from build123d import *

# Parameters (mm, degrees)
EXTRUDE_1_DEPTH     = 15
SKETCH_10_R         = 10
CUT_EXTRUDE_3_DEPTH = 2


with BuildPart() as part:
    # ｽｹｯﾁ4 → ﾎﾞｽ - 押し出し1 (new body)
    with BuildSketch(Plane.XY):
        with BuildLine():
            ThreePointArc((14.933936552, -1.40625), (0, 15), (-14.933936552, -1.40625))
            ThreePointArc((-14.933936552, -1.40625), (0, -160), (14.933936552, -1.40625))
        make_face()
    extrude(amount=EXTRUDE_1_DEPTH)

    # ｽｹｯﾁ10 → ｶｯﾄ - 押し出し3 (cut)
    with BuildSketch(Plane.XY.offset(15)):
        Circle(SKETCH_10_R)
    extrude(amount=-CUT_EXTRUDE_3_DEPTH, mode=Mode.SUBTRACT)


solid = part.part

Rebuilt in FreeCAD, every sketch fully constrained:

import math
import FreeCAD as App
import Part
import Sketcher
Q = App.Units.Quantity

doc = App.newDocument("Part")
body = doc.addObject("PartDesign::Body", "Body")

# Sketch on XY plane
sketch1 = doc.addObject("Sketcher::SketchObject", "Sketch")
body.addObject(sketch1)
sketch1.AttachmentSupport = (doc.XY_Plane, [""])
sketch1.MapMode = "FlatFace"
sketch1.addGeometry([
    Part.ArcOfCircle(Part.Circle(App.Vector(0, 0, 0), App.Vector(0, 0, 1), 15), math.radians(-5), math.radians(185)),
    Part.ArcOfCircle(Part.Circle(App.Vector(0, -80, 0), App.Vector(0, 0, 1), 80), math.radians(101), math.radians(439)),
], False)
sketch1.addConstraint([
    Sketcher.Constraint("Coincident", 0, 1, 1, 2),
    Sketcher.Constraint("Coincident", 1, 1, 0, 2),
    Sketcher.Constraint("Coincident", 0, 3, -1, 1),
    Sketcher.Constraint("PointOnObject", 1, 3, -2),
    Sketcher.Constraint("Radius", 0, Q("15 mm")),
    Sketcher.Constraint("Radius", 1, Q("80 mm")),
    Sketcher.Constraint("DistanceY", 1, 3, -1, 1, Q("80 mm")),
])
pad1 = doc.addObject("PartDesign::Pad", "Pad")
body.addObject(pad1)
pad1.Profile = sketch1
pad1.Length = 15

# Sketch on XY plane
sketch2 = doc.addObject("Sketcher::SketchObject", "Sketch001")
body.addObject(sketch2)
sketch2.AttachmentSupport = (doc.XY_Plane, [""])
sketch2.MapMode = "FlatFace"
sketch2.AttachmentOffset = App.Placement(App.Vector(0, 0, 15), App.Rotation())
sketch2.addGeometry(Part.Circle(App.Vector(0, 0, 0), App.Vector(0, 0, 1), 10), False)
sketch2.addConstraint([
    Sketcher.Constraint("Coincident", 0, 3, -1, 1),
    Sketcher.Constraint("Diameter", 0, Q("20 mm")),
])
pocket1 = doc.addObject("PartDesign::Pocket", "Pocket")
body.addObject(pocket1)
pocket1.Profile = sketch2
pocket1.Length = 2

doc.recompute()
